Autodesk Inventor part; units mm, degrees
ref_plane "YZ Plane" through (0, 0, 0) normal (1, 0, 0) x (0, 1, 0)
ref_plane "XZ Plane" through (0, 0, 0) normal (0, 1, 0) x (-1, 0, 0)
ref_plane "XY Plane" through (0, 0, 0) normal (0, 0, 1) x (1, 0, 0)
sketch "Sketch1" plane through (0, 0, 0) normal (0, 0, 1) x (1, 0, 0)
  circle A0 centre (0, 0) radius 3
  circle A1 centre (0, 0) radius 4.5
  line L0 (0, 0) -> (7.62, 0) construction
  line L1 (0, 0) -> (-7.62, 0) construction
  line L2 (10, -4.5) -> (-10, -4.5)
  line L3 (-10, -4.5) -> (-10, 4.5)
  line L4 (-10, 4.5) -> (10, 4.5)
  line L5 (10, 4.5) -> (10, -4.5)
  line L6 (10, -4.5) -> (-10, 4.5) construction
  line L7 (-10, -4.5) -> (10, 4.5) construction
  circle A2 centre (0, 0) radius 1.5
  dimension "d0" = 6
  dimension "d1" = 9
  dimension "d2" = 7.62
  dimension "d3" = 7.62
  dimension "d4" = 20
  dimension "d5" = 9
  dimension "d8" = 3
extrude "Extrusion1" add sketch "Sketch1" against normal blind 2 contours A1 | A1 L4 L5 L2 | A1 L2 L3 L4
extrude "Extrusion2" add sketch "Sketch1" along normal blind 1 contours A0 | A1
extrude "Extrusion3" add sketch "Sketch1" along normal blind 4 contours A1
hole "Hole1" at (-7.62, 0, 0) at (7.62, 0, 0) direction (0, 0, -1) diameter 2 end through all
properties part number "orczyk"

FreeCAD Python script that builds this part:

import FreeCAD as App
import Part
import Sketcher
Q = App.Units.Quantity

doc = App.newDocument("Part")
body = doc.addObject("PartDesign::Body", "Body")

# Sketch on XY plane
sketch1 = body.newObject("Sketcher::SketchObject", "Sketch")
sketch1.AttachmentSupport = (doc.getObject("XY_Plane"), [""])
sketch1.MapMode = "FlatFace"
sketch1.addGeometry([
    Part.LineSegment(App.Vector(10, -4.5, 0), App.Vector(10, 4.5, 0)),  # 0
    Part.LineSegment(App.Vector(10, 4.5, 0), App.Vector(-10, 4.5, 0)),  # 1
    Part.LineSegment(App.Vector(-10, 4.5, 0), App.Vector(-10, -4.5, 0)),  # 2
    Part.LineSegment(App.Vector(-10, -4.5, 0), App.Vector(10, -4.5, 0)),  # 3
    Part.Circle(App.Vector(0, 0, 0), App.Vector(0, 0, 1), 3),  # 4
], False)
sketch1.addConstraint([
    Sketcher.Constraint("Coincident", 0, 2, 1, 1),
    Sketcher.Constraint("Coincident", 1, 2, 2, 1),
    Sketcher.Constraint("Coincident", 2, 2, 3, 1),
    Sketcher.Constraint("Coincident", 3, 2, 0, 1),
    Sketcher.Constraint("Vertical", 0),
    Sketcher.Constraint("Horizontal", 1),
    Sketcher.Constraint("Vertical", 2),
    Sketcher.Constraint("Horizontal", 3),
    Sketcher.Constraint("Coincident", 4, 3, -1, 1),
    Sketcher.Constraint("Symmetric", 0, 2, 2, 2, -1, 1),
    Sketcher.Constraint("Diameter", 4, Q("6 mm")),
    Sketcher.Constraint("DistanceX", 1, 2, 1, 1, Q("20 mm")),
    Sketcher.Constraint("DistanceY", 0, 1, 0, 2, Q("9 mm")),
])
pad1 = body.newObject("PartDesign::Pad", "Pad")
pad1.Profile = sketch1
pad1.Length = 2
pad1.Reversed = True

# Sketch on XY plane
sketch2 = body.newObject("Sketcher::SketchObject", "Sketch001")
sketch2.AttachmentSupport = (doc.getObject("XY_Plane"), [""])
sketch2.MapMode = "FlatFace"
sketch2.addGeometry([
    Part.Circle(App.Vector(0, 0, 0), App.Vector(0, 0, 1), 4.5),
    Part.Circle(App.Vector(0, 0, 0), App.Vector(0, 0, 1), 1.5),
], False)
sketch2.addConstraint([
    Sketcher.Constraint("Coincident", 0, 3, -1, 1),
    Sketcher.Constraint("Coincident", 1, 3, -1, 1),
    Sketcher.Constraint("Diameter", 0, Q("9 mm")),
    Sketcher.Constraint("Diameter", 1, Q("3 mm")),
])
pad2 = body.newObject("PartDesign::Pad", "Pad001")
pad2.Profile = sketch2
pad2.Length = 1

# Sketch on XY plane
sketch3 = body.newObject("Sketcher::SketchObject", "Sketch002")
sketch3.AttachmentSupport = (doc.getObject("XY_Plane"), [""])
sketch3.MapMode = "FlatFace"
sketch3.addGeometry([
    Part.Circle(App.Vector(0, 0, 0), App.Vector(0, 0, 1), 4.5),
    Part.Circle(App.Vector(0, 0, 0), App.Vector(0, 0, 1), 3),
], False)
sketch3.addConstraint([
    Sketcher.Constraint("Coincident", 0, 3, -1, 1),
    Sketcher.Constraint("Coincident", 1, 3, -1, 1),
    Sketcher.Constraint("Diameter", 0, Q("9 mm")),
    Sketcher.Constraint("Diameter", 1, Q("6 mm")),
])
pad3 = body.newObject("PartDesign::Pad", "Pad002")
pad3.Profile = sketch3
pad3.Length = 4

# Sketch on XY plane
sketch4 = body.newObject("Sketcher::SketchObject", "Sketch003")
sketch4.AttachmentSupport = (doc.getObject("XY_Plane"), [""])
sketch4.MapMode = "FlatFace"
sketch4.addGeometry([
    Part.Circle(App.Vector(-7.62, 0, 0), App.Vector(0, 0, 1), 1),
    Part.Circle(App.Vector(7.62, 0, 0), App.Vector(0, 0, 1), 1),
], False)
sketch4.addConstraint([
    Sketcher.Constraint("Equal", 0, 1),
    Sketcher.Constraint("Symmetric", 0, 3, 1, 3, -1, 1),
    Sketcher.Constraint("PointOnObject", 0, 3, -1),
    Sketcher.Constraint("Diameter", 0, Q("2 mm")),
    Sketcher.Constraint("DistanceX", 0, 3, -1, 1, Q("7.62 mm")),
])
doc.recompute()
hole = body.newObject("PartDesign::Hole", "Hole")
hole.Profile = sketch4
hole.ThreadType = "None"
hole.Diameter = 2
hole.DepthType = "ThroughAll"

doc.recompute()
